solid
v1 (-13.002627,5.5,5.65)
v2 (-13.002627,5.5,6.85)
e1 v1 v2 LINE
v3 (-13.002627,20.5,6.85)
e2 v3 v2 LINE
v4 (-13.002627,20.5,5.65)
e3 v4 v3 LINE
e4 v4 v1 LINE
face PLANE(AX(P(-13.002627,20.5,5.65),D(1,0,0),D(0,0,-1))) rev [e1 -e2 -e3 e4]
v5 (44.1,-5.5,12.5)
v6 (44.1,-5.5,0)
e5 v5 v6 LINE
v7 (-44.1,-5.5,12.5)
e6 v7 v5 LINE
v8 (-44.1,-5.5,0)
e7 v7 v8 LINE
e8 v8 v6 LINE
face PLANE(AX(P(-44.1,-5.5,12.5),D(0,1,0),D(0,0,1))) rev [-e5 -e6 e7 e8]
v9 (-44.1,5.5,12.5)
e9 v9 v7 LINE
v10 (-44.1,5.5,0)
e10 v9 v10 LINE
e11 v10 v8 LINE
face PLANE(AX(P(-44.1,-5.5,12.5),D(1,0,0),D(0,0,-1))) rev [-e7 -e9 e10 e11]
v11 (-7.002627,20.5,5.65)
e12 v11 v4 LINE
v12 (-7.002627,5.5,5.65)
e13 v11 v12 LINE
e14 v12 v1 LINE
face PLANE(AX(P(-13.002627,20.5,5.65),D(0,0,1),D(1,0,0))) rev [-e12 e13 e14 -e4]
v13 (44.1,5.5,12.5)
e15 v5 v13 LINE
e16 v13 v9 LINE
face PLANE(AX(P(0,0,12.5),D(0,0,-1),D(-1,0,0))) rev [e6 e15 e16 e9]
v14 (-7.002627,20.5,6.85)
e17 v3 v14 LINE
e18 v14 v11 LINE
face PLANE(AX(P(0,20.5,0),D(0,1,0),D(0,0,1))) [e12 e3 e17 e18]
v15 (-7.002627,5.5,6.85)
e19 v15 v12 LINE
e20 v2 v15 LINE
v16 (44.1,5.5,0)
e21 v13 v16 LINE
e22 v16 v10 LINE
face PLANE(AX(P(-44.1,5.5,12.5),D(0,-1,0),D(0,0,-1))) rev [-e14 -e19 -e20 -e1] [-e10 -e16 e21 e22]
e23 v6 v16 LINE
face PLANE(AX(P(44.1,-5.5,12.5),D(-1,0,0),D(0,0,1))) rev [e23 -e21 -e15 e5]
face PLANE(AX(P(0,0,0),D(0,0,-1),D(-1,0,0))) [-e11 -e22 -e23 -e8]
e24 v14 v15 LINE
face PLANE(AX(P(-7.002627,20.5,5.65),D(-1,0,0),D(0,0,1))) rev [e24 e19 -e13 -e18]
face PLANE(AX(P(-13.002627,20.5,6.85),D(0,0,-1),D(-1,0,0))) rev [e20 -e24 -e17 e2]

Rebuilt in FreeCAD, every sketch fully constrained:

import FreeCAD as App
import Part
import Sketcher
Q = App.Units.Quantity


def add_polygon(sketch, points):
    """Adds a closed chain of lines whose ends are joined by coincident constraints."""
    first, n = sketch.GeometryCount, len(points)
    for a, b in zip(points, points[1:] + points[:1]):
        sketch.addGeometry(Part.LineSegment(App.Vector(*a, 0), App.Vector(*b, 0)), False)
    for i in range(n):
        sketch.addConstraint(Sketcher.Constraint("Coincident", first + i, 2, first + (i + 1) % n, 1))

doc = App.newDocument("Part")
body = doc.addObject("PartDesign::Body", "Body")

# Sketch on XY plane
sketch1 = body.newObject("Sketcher::SketchObject", "Sketch")
sketch1.AttachmentSupport = (doc.getObject("XY_Plane"), [""])
sketch1.MapMode = "FlatFace"
add_polygon(sketch1, [(-44, 6), (-44, -6), (44, -6), (44, 6)])  # lines 0-3
sketch1.addConstraint(Sketcher.Constraint("Vertical", 0))
sketch1.addConstraint(Sketcher.Constraint("Horizontal", 1))
sketch1.addConstraint(Sketcher.Constraint("Vertical", 2))
sketch1.addConstraint(Sketcher.Constraint("Horizontal", 3))
sketch1.addConstraint(Sketcher.Constraint("Symmetric", 0, 2, 2, 2, -1, 1))
sketch1.addConstraint(Sketcher.Constraint("DistanceY", 0, 2, 0, 1, Q("11 mm")))
sketch1.addConstraint(Sketcher.Constraint("DistanceX", 1, 1, 1, 2, Q("88.2 mm")))
pad1 = body.newObject("PartDesign::Pad", "Pad")
pad1.Profile = sketch1
pad1.Length = 12.5

# Sketch on XZ plane
sketch2 = body.newObject("Sketcher::SketchObject", "Sketch001")
sketch2.AttachmentSupport = (doc.getObject("XZ_Plane"), [""])
sketch2.MapMode = "FlatFace"
sketch2.AttachmentOffset = App.Placement(App.Vector(0, 0, -5.5), App.Rotation())
add_polygon(sketch2, [(-13, 5.7), (-13, 6.8), (-7, 6.8), (-7, 5.7)])  # lines 0-3
sketch2.addConstraint(Sketcher.Constraint("Vertical", 0))
sketch2.addConstraint(Sketcher.Constraint("Horizontal", 1))
sketch2.addConstraint(Sketcher.Constraint("Vertical", 2))
sketch2.addConstraint(Sketcher.Constraint("Horizontal", 3))
sketch2.addConstraint(Sketcher.Constraint("DistanceX", 1, 1, 1, 2, Q("6 mm")))
sketch2.addConstraint(Sketcher.Constraint("DistanceY", 0, 1, 0, 2, Q("1.2 mm")))
sketch2.addConstraint(Sketcher.Constraint("DistanceY", -1, 1, 0, 2, Q("6.85 mm")))
sketch2.addConstraint(Sketcher.Constraint("DistanceX", 0, 2, -1, 1, Q("13.002627 mm")))
pad2 = body.newObject("PartDesign::Pad", "Pad001")
pad2.Profile = sketch2
pad2.Length = 15
pad2.Reversed = True

doc.recompute()
